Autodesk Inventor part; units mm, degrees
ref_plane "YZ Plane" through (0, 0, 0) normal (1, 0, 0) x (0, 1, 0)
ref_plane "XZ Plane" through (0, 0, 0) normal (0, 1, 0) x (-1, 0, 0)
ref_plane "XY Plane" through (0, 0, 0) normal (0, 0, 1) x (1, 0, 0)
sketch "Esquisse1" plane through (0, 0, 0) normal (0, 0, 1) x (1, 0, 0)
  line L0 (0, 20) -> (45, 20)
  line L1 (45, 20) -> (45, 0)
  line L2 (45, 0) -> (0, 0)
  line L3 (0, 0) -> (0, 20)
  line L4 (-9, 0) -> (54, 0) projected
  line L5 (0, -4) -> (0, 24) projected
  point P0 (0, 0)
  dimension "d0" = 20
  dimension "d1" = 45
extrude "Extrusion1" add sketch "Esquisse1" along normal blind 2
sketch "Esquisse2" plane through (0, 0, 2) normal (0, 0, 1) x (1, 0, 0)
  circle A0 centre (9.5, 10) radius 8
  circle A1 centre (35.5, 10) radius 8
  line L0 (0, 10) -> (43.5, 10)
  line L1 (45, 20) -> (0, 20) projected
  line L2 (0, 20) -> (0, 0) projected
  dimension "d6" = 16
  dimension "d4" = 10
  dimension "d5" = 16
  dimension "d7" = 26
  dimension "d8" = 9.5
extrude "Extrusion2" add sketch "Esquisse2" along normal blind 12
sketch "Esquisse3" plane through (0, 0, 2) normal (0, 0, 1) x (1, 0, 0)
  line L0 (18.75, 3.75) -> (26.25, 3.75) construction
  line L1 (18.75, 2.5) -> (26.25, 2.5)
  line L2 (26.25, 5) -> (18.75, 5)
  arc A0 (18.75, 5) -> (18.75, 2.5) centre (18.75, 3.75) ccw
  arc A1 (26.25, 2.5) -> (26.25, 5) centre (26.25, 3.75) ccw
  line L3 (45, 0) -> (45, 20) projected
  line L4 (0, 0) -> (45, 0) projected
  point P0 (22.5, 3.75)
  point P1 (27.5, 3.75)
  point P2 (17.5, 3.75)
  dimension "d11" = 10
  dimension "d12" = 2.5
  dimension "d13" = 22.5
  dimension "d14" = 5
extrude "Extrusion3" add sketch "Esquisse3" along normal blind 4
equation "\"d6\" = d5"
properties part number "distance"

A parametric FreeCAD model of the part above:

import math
import FreeCAD as App
import Part
import Sketcher
from FreeCAD import Vector
Q = App.Units.Quantity

doc = App.newDocument("Part")
body = doc.addObject("PartDesign::Body", "Body")

sketch1 = body.newObject("Sketcher::SketchObject", "Sketch")
sketch1.AttachmentSupport = (doc.getObject("XY_Plane"), [""])
sketch1.MapMode = "FlatFace"
sketch1.addGeometry([
    Part.LineSegment(Vector(45, 20, 0), Vector(0, 20, 0)),
    Part.LineSegment(Vector(0, 20, 0), Vector(0, 0, 0)),
    Part.LineSegment(Vector(0, 0, 0), Vector(45, 0, 0)),
    Part.LineSegment(Vector(45, 0, 0), Vector(45, 20, 0)),
], False)
sketch1.addConstraint([
    Sketcher.Constraint("Coincident", 0, 2, 1, 1),
    Sketcher.Constraint("Coincident", 1, 2, 2, 1),
    Sketcher.Constraint("Coincident", 2, 2, 3, 1),
    Sketcher.Constraint("Coincident", 3, 2, 0, 1),
    Sketcher.Constraint("Horizontal", 0),
    Sketcher.Constraint("Vertical", 1),
    Sketcher.Constraint("Horizontal", 2),
    Sketcher.Constraint("Vertical", 3),
    Sketcher.Constraint("Coincident", 1, 2, -1, 1),
    Sketcher.Constraint("DistanceX", 0, 2, 0, 1, Q("45 mm")),
    Sketcher.Constraint("DistanceY", 1, 2, 1, 1, Q("20 mm")),
])
pad1 = body.newObject("PartDesign::Pad", "Pad")
pad1.Profile = sketch1
pad1.Length = 2

sketch2 = body.newObject("Sketcher::SketchObject", "Sketch001")
sketch2.AttachmentSupport = (doc.getObject("XY_Plane"), [""])
sketch2.MapMode = "FlatFace"
sketch2.AttachmentOffset = App.Placement(Vector(0, 0, 2), App.Rotation())
sketch2.addGeometry([
    Part.Circle(Vector(10, 10, 0), Vector(0, 0, 1), 8),
    Part.Circle(Vector(36, 10, 0), Vector(0, 0, 1), 8),
], False)
sketch2.addConstraint([
    Sketcher.Constraint("Equal", 0, 1),
    Sketcher.Constraint("Horizontal", 0, 3, 1, 3),
    Sketcher.Constraint("Diameter", 0, Q("16 mm")),
    Sketcher.Constraint("DistanceY", -1, 1, 0, 3, Q("10 mm")),
    Sketcher.Constraint("DistanceX", 0, 3, 1, 3, Q("26 mm")),
    Sketcher.Constraint("DistanceX", -1, 1, 0, 3, Q("9.5 mm")),
])
pad2 = body.newObject("PartDesign::Pad", "Pad001")
pad2.Profile = sketch2
pad2.Length = 12

sketch3 = body.newObject("Sketcher::SketchObject", "Sketch002")
sketch3.AttachmentSupport = (doc.getObject("XY_Plane"), [""])
sketch3.MapMode = "FlatFace"
sketch3.AttachmentOffset = App.Placement(Vector(0, 0, 2), App.Rotation())
sketch3.addGeometry([
    Part.ArcOfCircle(Part.Circle(Vector(18.8, 3.8, 0), Vector(0, 0, 1), 1.2), math.radians(90), math.radians(270)),
    Part.LineSegment(Vector(18.8, 2.5, 0), Vector(26.2, 2.5, 0)),
    Part.ArcOfCircle(Part.Circle(Vector(26.2, 3.8, 0), Vector(0, 0, 1), 1.2), math.radians(-90), math.radians(90)),
    Part.LineSegment(Vector(26.2, 5, 0), Vector(18.8, 5, 0)),
], False)
sketch3.addConstraint([
    Sketcher.Constraint("Tangent", 0, 2, 1, 1),
    Sketcher.Constraint("Tangent", 1, 2, 2, 1),
    Sketcher.Constraint("Tangent", 2, 2, 3, 1),
    Sketcher.Constraint("Tangent", 3, 2, 0, 1),
    Sketcher.Constraint("Horizontal", 1),
    Sketcher.Constraint("Horizontal", 3),
    Sketcher.Constraint("Radius", 0, Q("1.25 mm")),
    Sketcher.Constraint("DistanceY", -1, 1, 2, 2, Q("5 mm")),
    Sketcher.Constraint("DistanceX", 1, 1, 1, 2, Q("7.5 mm")),
    Sketcher.Constraint("DistanceX", -1, 1, 0, 3, Q("18.75 mm")),
])
pad3 = body.newObject("PartDesign::Pad", "Pad002")
pad3.Profile = sketch3
pad3.Length = 4

doc.recompute()
